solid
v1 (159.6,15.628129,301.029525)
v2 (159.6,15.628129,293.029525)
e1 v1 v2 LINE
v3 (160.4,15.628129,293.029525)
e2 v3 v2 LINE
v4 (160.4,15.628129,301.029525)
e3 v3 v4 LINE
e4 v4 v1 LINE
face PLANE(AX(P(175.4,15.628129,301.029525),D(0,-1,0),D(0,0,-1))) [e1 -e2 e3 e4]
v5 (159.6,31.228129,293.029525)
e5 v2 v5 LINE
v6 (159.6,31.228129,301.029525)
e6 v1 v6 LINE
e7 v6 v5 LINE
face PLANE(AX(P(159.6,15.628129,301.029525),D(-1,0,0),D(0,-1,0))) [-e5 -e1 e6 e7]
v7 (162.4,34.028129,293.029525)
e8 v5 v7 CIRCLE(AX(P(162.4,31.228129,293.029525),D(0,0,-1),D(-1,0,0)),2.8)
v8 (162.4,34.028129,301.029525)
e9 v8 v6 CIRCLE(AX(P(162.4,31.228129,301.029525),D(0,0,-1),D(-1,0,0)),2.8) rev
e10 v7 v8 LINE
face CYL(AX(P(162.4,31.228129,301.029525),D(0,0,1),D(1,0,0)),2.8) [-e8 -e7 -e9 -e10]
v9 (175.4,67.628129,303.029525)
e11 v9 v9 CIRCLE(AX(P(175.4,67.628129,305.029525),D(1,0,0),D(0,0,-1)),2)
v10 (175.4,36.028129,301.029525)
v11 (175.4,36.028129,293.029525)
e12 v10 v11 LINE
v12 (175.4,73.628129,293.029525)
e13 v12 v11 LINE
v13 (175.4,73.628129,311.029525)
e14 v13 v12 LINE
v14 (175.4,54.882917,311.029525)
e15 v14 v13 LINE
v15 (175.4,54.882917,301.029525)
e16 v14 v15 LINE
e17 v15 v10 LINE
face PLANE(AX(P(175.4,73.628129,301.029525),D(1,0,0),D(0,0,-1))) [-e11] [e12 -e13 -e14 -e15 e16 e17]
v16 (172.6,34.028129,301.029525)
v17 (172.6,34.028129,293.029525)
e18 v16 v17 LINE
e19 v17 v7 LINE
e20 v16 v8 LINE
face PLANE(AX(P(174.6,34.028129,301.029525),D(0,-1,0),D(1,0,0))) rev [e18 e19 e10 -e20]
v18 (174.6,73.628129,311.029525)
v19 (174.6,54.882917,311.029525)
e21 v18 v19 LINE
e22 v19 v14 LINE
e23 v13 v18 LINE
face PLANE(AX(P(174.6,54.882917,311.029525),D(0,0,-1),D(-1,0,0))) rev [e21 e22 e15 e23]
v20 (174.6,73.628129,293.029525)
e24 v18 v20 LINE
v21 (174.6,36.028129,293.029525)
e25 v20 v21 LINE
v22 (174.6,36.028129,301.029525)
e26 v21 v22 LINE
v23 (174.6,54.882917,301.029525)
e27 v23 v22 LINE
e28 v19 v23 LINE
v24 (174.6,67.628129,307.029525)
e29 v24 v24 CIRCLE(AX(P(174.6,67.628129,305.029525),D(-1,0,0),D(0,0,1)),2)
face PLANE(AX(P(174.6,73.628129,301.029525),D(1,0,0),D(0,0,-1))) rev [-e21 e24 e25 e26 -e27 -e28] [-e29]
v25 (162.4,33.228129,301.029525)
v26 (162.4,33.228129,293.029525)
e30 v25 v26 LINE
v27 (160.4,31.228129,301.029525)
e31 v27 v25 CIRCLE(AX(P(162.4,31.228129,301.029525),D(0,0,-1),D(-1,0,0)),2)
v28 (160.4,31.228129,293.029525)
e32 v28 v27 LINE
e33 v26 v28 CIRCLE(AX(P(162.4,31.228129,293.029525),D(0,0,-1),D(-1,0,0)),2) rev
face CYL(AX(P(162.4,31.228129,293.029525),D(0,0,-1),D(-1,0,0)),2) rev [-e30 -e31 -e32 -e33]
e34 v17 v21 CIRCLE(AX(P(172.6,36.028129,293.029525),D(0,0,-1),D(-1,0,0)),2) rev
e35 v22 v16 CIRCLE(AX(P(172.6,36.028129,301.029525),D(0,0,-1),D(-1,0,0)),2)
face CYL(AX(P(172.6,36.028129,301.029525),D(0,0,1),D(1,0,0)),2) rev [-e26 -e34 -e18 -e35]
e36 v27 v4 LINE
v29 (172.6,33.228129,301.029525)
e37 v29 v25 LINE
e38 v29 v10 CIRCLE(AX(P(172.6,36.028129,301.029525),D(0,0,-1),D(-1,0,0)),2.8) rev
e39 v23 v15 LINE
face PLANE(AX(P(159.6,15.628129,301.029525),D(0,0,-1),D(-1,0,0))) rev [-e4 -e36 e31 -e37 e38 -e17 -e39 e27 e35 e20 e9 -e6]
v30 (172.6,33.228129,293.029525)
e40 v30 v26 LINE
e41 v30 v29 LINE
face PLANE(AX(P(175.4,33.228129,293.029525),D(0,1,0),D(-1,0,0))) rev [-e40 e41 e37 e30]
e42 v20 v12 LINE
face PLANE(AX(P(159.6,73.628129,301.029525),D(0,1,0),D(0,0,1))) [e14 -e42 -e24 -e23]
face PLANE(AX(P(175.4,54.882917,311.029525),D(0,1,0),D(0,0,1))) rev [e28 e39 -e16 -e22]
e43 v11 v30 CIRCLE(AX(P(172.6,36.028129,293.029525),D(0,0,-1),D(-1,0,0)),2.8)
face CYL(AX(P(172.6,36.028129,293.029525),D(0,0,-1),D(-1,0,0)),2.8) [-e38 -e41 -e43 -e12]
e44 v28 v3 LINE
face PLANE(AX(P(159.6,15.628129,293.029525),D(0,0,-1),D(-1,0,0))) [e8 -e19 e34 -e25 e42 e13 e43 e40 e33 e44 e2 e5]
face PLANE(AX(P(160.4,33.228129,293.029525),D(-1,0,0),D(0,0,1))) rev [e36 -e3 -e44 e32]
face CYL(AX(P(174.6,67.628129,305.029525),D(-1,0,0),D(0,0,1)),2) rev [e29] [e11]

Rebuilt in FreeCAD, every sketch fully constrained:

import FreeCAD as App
import Part
import Sketcher
Q = App.Units.Quantity


def edges_at(feature, points):
    """Names of the edges that pass closest to the given points."""
    edges = feature.Shape.Edges
    near = lambda p: min(range(len(edges)), key=lambda i: edges[i].distToShape(Part.Vertex(*p))[0])
    return sorted({f"Edge{near(p) + 1}" for p in points})


def add_polygon(sketch, points):
    """Adds a closed chain of lines whose ends are joined by coincident constraints."""
    first, n = sketch.GeometryCount, len(points)
    for a, b in zip(points, points[1:] + points[:1]):
        sketch.addGeometry(Part.LineSegment(App.Vector(*a, 0), App.Vector(*b, 0)), False)
    for i in range(n):
        sketch.addConstraint(Sketcher.Constraint("Coincident", first + i, 2, first + (i + 1) % n, 1))

doc = App.newDocument("Part")
body = doc.addObject("PartDesign::Body", "Body")

# Sketch on XY plane
sketch1 = body.newObject("Sketcher::SketchObject", "Sketch")
sketch1.AttachmentSupport = (doc.getObject("XY_Plane"), [""])
sketch1.MapMode = "FlatFace"
sketch1.AttachmentOffset = App.Placement(App.Vector(0, 0, 293.029525), App.Rotation())
add_polygon(sketch1, [(175, 74), (175, 16), (160, 16), (160, 74)])  # lines 0-3
sketch1.addConstraint(Sketcher.Constraint("Vertical", 0))
sketch1.addConstraint(Sketcher.Constraint("Horizontal", 1))
sketch1.addConstraint(Sketcher.Constraint("Vertical", 2))
sketch1.addConstraint(Sketcher.Constraint("Horizontal", 3))
sketch1.addConstraint(Sketcher.Constraint("DistanceY", 0, 2, 0, 1, Q("58 mm")))
sketch1.addConstraint(Sketcher.Constraint("DistanceX", 1, 2, 1, 1, Q("15.8 mm")))
sketch1.addConstraint(Sketcher.Constraint("DistanceX", -1, 1, 0, 2, Q("175.4 mm")))
sketch1.addConstraint(Sketcher.Constraint("DistanceY", -1, 1, 0, 2, Q("15.628129 mm")))
pad1 = body.newObject("PartDesign::Pad", "Pad")
pad1.Profile = sketch1
pad1.Length = 8

# Sketch on XY plane
sketch2 = body.newObject("Sketcher::SketchObject", "Sketch001")
sketch2.AttachmentSupport = (doc.getObject("XY_Plane"), [""])
sketch2.MapMode = "FlatFace"
sketch2.AttachmentOffset = App.Placement(App.Vector(0, 0, 293.029525), App.Rotation())
add_polygon(sketch2, [(175, 74), (175, 34), (160, 34), (160, 74)])  # lines 0-3
sketch2.addConstraint(Sketcher.Constraint("Vertical", 0))
sketch2.addConstraint(Sketcher.Constraint("Horizontal", 1))
sketch2.addConstraint(Sketcher.Constraint("Vertical", 2))
sketch2.addConstraint(Sketcher.Constraint("Horizontal", 3))
sketch2.addConstraint(Sketcher.Constraint("DistanceX", 1, 2, 1, 1, Q("15 mm")))
sketch2.addConstraint(Sketcher.Constraint("DistanceY", 0, 2, 0, 1, Q("39.6 mm")))
sketch2.addConstraint(Sketcher.Constraint("DistanceX", -1, 1, 0, 2, Q("174.6 mm")))
sketch2.addConstraint(Sketcher.Constraint("DistanceY", -1, 1, 0, 2, Q("34.028129 mm")))
pocket1 = body.newObject("PartDesign::Pocket", "Pocket")
pocket1.Profile = sketch2
pocket1.Type = "ThroughAll"
pocket1.Reversed = True

# Sketch on XY plane
sketch3 = body.newObject("Sketcher::SketchObject", "Sketch002")
sketch3.AttachmentSupport = (doc.getObject("XY_Plane"), [""])
sketch3.MapMode = "FlatFace"
sketch3.AttachmentOffset = App.Placement(App.Vector(0, 0, 301.029525), App.Rotation())
add_polygon(sketch3, [(174.6, 73.6), (174.6, 54.9), (175.4, 54.9), (175.4, 73.6)])  # lines 0-3
sketch3.addConstraint(Sketcher.Constraint("Vertical", 0))
sketch3.addConstraint(Sketcher.Constraint("Horizontal", 1))
sketch3.addConstraint(Sketcher.Constraint("Vertical", 2))
sketch3.addConstraint(Sketcher.Constraint("Horizontal", 3))
sketch3.addConstraint(Sketcher.Constraint("DistanceX", 1, 1, 1, 2, Q("0.8 mm")))
sketch3.addConstraint(Sketcher.Constraint("DistanceX", -1, 1, 0, 2, Q("174.6 mm")))
sketch3.addConstraint(Sketcher.Constraint("DistanceY", 0, 2, 0, 1, Q("18.745212 mm")))
sketch3.addConstraint(Sketcher.Constraint("DistanceY", -1, 1, 2, 2, Q("73.628129 mm")))
pad2 = body.newObject("PartDesign::Pad", "Pad001")
pad2.Profile = sketch3
pad2.Length = 10

# Sketch on XY plane
sketch4 = body.newObject("Sketcher::SketchObject", "Sketch003")
sketch4.AttachmentSupport = (doc.getObject("XY_Plane"), [""])
sketch4.MapMode = "FlatFace"
sketch4.AttachmentOffset = App.Placement(App.Vector(0, 0, 301.029525), App.Rotation())
add_polygon(sketch4, [(160, 33), (160, 16), (175, 16), (175, 33)])  # lines 0-3
sketch4.addConstraint(Sketcher.Constraint("Vertical", 0))
sketch4.addConstraint(Sketcher.Constraint("Horizontal", 1))
sketch4.addConstraint(Sketcher.Constraint("Vertical", 2))
sketch4.addConstraint(Sketcher.Constraint("Horizontal", 3))
sketch4.addConstraint(Sketcher.Constraint("DistanceX", 1, 1, 1, 2, Q("15 mm")))
sketch4.addConstraint(Sketcher.Constraint("DistanceY", 0, 2, 0, 1, Q("17.6 mm")))
sketch4.addConstraint(Sketcher.Constraint("DistanceX", -1, 1, 0, 2, Q("160.4 mm")))
sketch4.addConstraint(Sketcher.Constraint("DistanceY", -1, 1, 0, 2, Q("15.628129 mm")))
pocket2 = body.newObject("PartDesign::Pocket", "Pocket001")
pocket2.Profile = sketch4
pocket2.Type = "ThroughAll"

# Sketch on YZ plane
sketch5 = body.newObject("Sketcher::SketchObject", "Sketch004")
sketch5.AttachmentSupport = (doc.getObject("YZ_Plane"), [""])
sketch5.MapMode = "FlatFace"
sketch5.AttachmentOffset = App.Placement(App.Vector(0, 0, 174.6), App.Rotation())
sketch5.addGeometry(Part.Circle(App.Vector(67.6, 305, 0), App.Vector(0, 0, 1), 2), False)
sketch5.addConstraint(Sketcher.Constraint("Diameter", 0, Q("4 mm")))
sketch5.addConstraint(Sketcher.Constraint("DistanceX", -1, 1, 0, 3, Q("67.628129 mm")))
sketch5.addConstraint(Sketcher.Constraint("DistanceY", -1, 1, 0, 3, Q("305.029525 mm")))
doc.recompute()
hole = body.newObject("PartDesign::Hole", "Hole")
hole.Profile = sketch5
hole.ThreadType = "None"
hole.Diameter = 4
hole.DepthType = "ThroughAll"
hole.Reversed = True
doc.recompute()

fillet = body.newObject("PartDesign::Fillet", "Fillet")
fillet.Base = (hole, edges_at(hole, [(160.4, 33.228, 297.03)]))
fillet.Radius = 2
doc.recompute()

fillet2 = body.newObject("PartDesign::Fillet", "Fillet001")
fillet2.Base = (fillet, edges_at(fillet, [(174.6, 34.028, 297.03)]))
fillet2.Radius = 2
doc.recompute()

fillet3 = body.newObject("PartDesign::Fillet", "Fillet002")
fillet3.Base = (fillet2, edges_at(fillet2, [(159.6, 34.028, 297.03)]))
fillet3.Radius = 2.8
doc.recompute()

fillet4 = body.newObject("PartDesign::Fillet", "Fillet003")
fillet4.Base = (fillet3, edges_at(fillet3, [(175.4, 33.228, 297.03)]))
fillet4.Radius = 2.8

doc.recompute()
